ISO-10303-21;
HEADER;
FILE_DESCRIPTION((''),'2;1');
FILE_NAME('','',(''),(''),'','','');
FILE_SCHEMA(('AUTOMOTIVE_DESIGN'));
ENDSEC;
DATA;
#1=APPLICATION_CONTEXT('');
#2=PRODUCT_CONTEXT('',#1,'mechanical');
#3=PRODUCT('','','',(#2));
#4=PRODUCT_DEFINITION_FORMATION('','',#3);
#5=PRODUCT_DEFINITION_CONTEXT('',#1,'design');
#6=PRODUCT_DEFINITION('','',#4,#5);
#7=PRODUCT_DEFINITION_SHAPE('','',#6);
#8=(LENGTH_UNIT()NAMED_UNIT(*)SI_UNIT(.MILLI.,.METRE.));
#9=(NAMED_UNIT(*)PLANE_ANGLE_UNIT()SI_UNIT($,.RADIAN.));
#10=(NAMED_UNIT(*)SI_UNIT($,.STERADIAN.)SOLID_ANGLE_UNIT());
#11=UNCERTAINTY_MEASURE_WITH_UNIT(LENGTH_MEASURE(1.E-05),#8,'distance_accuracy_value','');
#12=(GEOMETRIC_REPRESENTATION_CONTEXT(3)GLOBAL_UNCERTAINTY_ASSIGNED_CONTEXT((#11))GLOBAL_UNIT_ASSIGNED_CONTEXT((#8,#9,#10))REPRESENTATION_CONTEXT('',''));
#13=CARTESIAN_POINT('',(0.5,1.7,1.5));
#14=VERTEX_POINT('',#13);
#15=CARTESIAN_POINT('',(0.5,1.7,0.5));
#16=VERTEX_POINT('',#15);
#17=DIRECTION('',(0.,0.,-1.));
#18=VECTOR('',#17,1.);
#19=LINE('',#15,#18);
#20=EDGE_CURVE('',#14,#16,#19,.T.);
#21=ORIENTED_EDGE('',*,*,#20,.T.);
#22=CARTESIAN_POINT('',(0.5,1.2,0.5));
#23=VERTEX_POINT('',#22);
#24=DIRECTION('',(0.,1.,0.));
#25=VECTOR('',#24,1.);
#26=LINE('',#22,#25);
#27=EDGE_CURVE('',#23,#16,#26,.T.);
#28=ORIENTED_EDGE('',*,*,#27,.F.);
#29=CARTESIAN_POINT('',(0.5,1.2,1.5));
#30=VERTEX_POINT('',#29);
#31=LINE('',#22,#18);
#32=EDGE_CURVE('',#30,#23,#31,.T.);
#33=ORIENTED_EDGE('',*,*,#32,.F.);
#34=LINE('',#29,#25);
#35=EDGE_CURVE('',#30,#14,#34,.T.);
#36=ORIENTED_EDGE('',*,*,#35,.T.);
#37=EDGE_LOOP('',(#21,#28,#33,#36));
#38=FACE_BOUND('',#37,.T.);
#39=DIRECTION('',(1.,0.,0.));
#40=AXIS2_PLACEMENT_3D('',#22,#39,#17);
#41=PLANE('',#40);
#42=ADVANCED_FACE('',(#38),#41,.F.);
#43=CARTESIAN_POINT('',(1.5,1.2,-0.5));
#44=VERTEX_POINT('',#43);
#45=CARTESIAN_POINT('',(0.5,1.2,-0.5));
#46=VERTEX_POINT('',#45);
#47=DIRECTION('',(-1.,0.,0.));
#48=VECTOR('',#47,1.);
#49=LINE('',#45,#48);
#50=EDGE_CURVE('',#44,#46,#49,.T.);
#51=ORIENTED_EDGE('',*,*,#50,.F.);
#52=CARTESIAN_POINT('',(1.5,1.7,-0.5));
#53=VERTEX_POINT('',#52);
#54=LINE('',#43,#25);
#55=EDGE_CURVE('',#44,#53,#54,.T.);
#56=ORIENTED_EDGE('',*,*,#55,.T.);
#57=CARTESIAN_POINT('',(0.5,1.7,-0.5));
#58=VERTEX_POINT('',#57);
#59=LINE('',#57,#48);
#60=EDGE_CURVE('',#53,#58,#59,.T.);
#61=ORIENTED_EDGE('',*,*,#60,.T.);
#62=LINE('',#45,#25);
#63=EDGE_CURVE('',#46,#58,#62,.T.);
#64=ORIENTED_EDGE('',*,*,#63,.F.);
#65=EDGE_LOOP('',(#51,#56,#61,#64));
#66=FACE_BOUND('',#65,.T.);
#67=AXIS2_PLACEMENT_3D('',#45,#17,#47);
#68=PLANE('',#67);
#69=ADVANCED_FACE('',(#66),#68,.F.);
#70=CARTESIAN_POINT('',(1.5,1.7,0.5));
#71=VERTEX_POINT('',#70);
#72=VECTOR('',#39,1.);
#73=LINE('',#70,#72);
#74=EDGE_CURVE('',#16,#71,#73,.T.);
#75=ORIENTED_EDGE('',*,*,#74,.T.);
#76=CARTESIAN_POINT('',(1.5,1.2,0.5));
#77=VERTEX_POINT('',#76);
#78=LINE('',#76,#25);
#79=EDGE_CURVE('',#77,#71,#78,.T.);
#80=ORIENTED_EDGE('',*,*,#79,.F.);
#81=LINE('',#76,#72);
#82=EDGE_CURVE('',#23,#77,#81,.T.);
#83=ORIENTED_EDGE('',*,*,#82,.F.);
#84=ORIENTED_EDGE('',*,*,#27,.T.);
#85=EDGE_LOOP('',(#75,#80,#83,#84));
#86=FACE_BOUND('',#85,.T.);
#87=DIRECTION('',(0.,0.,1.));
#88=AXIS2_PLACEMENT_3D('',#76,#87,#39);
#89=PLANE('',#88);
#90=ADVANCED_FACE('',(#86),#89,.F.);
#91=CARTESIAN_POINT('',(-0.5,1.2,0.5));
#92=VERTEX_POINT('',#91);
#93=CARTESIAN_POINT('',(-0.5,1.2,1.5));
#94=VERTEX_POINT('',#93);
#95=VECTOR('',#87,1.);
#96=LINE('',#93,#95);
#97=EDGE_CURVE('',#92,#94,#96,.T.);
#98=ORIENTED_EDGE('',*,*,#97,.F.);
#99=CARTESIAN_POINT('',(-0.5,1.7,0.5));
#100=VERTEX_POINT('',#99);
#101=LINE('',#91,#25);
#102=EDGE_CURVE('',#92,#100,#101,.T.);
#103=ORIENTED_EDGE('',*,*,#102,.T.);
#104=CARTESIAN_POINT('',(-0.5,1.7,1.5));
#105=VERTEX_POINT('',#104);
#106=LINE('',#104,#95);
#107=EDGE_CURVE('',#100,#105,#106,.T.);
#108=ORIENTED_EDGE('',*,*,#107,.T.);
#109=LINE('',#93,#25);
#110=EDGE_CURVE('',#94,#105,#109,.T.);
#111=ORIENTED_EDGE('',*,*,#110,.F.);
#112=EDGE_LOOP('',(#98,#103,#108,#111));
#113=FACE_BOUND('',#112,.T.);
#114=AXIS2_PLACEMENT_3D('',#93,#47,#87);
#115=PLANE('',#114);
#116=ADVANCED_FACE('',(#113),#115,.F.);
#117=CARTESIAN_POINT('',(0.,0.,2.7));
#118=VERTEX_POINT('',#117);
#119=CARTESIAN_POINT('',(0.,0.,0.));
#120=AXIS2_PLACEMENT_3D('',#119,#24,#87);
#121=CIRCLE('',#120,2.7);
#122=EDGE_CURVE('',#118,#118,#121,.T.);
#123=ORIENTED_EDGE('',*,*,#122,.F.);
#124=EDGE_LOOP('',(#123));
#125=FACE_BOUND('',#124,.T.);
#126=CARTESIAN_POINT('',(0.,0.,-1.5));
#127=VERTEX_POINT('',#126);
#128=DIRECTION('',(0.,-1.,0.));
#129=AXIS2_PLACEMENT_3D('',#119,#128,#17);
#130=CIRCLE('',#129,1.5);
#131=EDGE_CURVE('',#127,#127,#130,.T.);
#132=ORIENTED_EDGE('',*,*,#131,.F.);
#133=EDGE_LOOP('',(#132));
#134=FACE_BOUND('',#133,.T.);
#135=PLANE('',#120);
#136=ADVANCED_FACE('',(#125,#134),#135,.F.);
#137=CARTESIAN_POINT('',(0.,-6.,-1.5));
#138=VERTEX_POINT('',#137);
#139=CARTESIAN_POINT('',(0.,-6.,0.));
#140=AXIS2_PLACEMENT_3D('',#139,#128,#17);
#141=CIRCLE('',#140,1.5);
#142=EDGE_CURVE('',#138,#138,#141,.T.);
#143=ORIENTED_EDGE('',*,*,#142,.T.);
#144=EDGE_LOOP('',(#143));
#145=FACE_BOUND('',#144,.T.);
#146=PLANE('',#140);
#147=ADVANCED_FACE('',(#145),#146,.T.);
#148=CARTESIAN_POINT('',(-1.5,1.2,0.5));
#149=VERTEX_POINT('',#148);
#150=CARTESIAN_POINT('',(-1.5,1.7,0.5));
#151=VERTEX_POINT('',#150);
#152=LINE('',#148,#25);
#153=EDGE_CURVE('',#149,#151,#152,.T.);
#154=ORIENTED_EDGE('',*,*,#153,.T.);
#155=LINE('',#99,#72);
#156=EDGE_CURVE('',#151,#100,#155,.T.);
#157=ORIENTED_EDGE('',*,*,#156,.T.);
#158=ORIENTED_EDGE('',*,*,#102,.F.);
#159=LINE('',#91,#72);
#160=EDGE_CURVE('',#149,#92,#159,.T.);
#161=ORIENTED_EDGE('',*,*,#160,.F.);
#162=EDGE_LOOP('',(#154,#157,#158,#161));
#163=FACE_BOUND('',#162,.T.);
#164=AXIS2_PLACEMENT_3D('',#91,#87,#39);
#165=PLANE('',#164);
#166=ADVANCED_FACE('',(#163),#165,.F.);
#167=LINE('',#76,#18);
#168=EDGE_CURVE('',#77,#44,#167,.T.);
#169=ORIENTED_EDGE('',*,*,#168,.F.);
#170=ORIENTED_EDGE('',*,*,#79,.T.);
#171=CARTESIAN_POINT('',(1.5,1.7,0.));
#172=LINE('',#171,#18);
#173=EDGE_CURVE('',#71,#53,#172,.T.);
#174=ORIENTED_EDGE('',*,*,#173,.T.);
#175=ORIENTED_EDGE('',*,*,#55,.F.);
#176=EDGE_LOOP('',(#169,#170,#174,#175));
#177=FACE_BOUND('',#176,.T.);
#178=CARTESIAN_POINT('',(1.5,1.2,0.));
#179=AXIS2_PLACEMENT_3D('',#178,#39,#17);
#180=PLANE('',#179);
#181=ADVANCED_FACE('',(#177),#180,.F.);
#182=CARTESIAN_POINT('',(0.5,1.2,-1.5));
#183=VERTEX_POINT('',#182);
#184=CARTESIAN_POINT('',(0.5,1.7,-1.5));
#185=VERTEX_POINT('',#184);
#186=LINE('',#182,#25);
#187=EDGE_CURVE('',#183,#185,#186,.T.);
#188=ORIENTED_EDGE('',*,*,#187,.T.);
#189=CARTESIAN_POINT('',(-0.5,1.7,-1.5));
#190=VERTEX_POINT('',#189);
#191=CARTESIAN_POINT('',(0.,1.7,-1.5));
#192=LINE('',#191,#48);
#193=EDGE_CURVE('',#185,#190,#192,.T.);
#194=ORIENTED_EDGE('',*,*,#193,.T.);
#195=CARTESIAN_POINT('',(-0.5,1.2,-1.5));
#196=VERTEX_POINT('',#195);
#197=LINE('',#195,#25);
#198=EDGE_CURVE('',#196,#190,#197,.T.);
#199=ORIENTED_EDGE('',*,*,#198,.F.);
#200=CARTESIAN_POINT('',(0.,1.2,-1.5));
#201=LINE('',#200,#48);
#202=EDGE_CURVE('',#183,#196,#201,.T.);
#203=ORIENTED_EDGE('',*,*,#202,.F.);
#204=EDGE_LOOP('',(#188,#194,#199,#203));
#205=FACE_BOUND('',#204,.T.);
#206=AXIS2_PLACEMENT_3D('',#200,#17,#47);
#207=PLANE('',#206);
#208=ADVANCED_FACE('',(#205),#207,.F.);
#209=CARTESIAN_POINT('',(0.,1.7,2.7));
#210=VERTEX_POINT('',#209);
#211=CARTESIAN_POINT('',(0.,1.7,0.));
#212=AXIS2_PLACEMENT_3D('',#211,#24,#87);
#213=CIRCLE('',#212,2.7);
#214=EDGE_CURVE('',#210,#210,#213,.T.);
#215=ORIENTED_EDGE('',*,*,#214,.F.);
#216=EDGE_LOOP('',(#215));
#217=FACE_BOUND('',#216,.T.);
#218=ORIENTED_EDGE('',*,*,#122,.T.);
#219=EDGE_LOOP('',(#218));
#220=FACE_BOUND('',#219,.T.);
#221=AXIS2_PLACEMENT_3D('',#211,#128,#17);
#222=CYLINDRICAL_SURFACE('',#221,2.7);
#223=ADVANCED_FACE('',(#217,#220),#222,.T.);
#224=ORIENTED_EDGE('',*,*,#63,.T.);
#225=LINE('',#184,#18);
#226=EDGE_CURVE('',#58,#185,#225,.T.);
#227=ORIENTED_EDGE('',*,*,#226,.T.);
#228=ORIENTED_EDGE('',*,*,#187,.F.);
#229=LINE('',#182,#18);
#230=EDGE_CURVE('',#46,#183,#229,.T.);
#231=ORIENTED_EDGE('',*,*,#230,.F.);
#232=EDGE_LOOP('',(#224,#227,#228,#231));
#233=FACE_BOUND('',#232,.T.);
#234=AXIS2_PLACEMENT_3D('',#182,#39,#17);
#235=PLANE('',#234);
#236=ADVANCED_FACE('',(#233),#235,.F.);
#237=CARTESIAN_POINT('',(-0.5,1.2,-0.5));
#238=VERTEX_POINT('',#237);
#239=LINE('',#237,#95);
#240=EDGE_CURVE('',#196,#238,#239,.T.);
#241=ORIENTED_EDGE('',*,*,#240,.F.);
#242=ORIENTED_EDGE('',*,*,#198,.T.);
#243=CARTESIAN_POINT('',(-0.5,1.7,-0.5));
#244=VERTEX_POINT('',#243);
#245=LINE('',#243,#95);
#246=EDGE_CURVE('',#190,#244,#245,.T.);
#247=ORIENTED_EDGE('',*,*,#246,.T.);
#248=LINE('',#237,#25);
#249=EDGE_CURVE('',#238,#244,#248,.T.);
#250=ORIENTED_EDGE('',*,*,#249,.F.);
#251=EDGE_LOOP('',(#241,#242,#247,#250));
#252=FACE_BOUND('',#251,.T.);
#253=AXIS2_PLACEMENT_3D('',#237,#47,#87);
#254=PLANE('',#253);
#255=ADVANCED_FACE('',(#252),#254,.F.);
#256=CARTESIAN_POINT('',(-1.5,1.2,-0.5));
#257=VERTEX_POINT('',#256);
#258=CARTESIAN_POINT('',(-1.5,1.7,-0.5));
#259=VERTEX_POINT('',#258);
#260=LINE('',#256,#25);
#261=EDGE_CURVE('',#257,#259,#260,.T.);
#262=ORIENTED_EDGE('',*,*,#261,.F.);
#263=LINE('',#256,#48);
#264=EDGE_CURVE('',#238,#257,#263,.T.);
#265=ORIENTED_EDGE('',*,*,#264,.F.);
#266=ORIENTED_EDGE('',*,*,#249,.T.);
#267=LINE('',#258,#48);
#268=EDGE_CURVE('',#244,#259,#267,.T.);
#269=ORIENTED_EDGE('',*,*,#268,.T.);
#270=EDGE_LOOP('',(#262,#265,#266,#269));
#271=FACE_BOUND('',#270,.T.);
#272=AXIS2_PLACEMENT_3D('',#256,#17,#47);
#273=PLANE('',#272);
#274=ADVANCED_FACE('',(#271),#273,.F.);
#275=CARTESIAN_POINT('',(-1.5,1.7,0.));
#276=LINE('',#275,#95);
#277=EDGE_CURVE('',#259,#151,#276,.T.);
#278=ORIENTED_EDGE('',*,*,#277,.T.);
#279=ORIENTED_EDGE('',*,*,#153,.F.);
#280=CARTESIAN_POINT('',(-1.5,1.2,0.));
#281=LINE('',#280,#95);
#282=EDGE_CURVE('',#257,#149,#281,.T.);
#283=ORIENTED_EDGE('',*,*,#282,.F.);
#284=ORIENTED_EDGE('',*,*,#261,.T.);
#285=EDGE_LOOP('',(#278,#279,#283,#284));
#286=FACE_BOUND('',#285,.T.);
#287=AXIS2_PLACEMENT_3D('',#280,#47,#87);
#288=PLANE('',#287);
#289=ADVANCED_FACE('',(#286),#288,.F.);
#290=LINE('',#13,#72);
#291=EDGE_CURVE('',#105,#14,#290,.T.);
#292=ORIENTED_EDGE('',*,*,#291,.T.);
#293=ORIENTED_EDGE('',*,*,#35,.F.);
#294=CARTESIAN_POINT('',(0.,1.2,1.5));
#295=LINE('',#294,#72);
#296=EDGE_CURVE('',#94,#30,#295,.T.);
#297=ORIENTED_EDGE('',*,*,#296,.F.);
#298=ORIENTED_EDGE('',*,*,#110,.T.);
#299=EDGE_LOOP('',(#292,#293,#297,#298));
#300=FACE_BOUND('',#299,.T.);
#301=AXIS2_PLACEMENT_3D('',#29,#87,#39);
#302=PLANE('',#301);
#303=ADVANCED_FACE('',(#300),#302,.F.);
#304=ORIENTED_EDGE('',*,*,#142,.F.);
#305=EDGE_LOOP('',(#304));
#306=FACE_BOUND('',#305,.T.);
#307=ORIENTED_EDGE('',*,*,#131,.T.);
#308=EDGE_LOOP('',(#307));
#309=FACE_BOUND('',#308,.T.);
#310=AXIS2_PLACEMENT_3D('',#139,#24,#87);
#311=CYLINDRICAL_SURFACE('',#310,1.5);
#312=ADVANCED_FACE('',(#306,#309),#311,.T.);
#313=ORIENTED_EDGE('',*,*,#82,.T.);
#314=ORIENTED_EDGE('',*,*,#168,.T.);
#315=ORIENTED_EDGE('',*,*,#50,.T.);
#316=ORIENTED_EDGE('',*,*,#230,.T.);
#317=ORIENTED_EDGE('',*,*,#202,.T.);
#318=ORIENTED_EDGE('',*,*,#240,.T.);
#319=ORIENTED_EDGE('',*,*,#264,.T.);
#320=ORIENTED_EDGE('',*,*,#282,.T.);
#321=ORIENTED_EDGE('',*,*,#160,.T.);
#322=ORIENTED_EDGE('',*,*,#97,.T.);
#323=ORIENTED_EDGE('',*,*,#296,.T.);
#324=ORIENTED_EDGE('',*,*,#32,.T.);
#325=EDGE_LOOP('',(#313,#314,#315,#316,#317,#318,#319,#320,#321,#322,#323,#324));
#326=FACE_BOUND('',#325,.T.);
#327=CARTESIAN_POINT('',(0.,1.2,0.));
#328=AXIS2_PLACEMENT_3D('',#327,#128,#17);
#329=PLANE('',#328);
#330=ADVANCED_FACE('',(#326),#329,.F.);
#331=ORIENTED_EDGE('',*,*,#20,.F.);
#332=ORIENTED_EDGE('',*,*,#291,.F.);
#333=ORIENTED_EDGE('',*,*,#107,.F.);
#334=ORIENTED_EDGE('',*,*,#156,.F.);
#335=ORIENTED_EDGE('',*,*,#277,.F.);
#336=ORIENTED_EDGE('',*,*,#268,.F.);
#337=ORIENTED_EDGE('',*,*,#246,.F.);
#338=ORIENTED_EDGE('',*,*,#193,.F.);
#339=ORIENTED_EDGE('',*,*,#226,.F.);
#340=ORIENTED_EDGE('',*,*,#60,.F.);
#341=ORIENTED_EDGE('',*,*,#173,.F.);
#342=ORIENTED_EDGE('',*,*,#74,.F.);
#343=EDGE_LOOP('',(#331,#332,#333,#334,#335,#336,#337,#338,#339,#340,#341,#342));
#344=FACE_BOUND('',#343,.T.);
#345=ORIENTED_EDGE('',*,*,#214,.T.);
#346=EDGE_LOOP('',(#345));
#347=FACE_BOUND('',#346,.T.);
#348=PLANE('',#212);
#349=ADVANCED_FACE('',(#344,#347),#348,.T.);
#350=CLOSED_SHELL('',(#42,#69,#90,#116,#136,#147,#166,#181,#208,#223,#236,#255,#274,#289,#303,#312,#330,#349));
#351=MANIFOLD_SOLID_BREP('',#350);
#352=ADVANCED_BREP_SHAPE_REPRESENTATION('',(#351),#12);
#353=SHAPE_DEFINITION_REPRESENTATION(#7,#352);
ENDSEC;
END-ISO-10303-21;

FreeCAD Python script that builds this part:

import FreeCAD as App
import Part
import Sketcher

V = App.Vector
Q = App.Units.Quantity

doc = App.newDocument("Part")
params = doc.addObject("Spreadsheet::Sheet", "Params")
for row, (alias, value) in enumerate([
    ("sketch1_diameter", "5.4 mm"),
    ("pad1_length", "1.7 mm"),
    ("sketch2_width", "1 mm"),
    ("pocket1_length", "0.5 mm"),
    ("sketch3_diameter", "3 mm"),
    ("pad2_length", "6 mm"),
], start=1):
    params.set(f"A{row}", alias)
    params.set(f"B{row}", "=" + value)
    params.setAlias(f"B{row}", alias)

body = doc.addObject("PartDesign::Body", "Body")

# Sketch on XZ plane
sketch1 = body.newObject("Sketcher::SketchObject", "Sketch")
sketch1.AttachmentSupport = (doc.getObject("XZ_Plane"), [""])
sketch1.MapMode = "FlatFace"
sketch1.addGeometry(Part.Circle(V(0, 0, 0), V(0, 0, 1), 2.7), False)
sketch1.addConstraint([
    Sketcher.Constraint("Coincident", 0, 3, -1, 1),
    Sketcher.Constraint("Diameter", 0, Q("5.4 mm")),
])
sketch1.setExpression("Constraints[1]", "Params.sketch1_diameter")
pad1 = body.newObject("PartDesign::Pad", "Pad")
pad1.Profile = sketch1
pad1.setExpression("Length", "Params.pad1_length")
pad1.Reversed = True

# Sketch on XZ plane
sketch2 = body.newObject("Sketcher::SketchObject", "Sketch001")
sketch2.AttachmentSupport = (doc.getObject("XZ_Plane"), [""])
sketch2.MapMode = "FlatFace"
sketch2.AttachmentOffset = App.Placement(V(0, 0, -1.7), App.Rotation())
sketch2.addGeometry([
    Part.LineSegment(V(0.5, -1.5, 0), V(-0.5, -1.5, 0)),  # 0
    Part.LineSegment(V(-0.5, -1.5, 0), V(-0.5, -0.5, 0)),  # 1
    Part.LineSegment(V(-0.5, -0.5, 0), V(-1.5, -0.5, 0)),  # 2
    Part.LineSegment(V(-1.5, -0.5, 0), V(-1.5, 0.5, 0)),  # 3
    Part.LineSegment(V(-1.5, 0.5, 0), V(-0.5, 0.5, 0)),  # 4
    Part.LineSegment(V(-0.5, 0.5, 0), V(-0.5, 1.5, 0)),  # 5
    Part.LineSegment(V(-0.5, 1.5, 0), V(0.5, 1.5, 0)),  # 6
    Part.LineSegment(V(0.5, 1.5, 0), V(0.5, 0.5, 0)),  # 7
    Part.LineSegment(V(0.5, 0.5, 0), V(1.5, 0.5, 0)),  # 8
    Part.LineSegment(V(1.5, 0.5, 0), V(1.5, -0.5, 0)),  # 9
    Part.LineSegment(V(1.5, -0.5, 0), V(0.5, -0.5, 0)),  # 10
    Part.LineSegment(V(0.5, -0.5, 0), V(0.5, -1.5, 0)),  # 11
], False)
sketch2.addConstraint([
    Sketcher.Constraint("Coincident", 0, 2, 1, 1),
    Sketcher.Constraint("Coincident", 1, 2, 2, 1),
    Sketcher.Constraint("Coincident", 2, 2, 3, 1),
    Sketcher.Constraint("Coincident", 3, 2, 4, 1),
    Sketcher.Constraint("Coincident", 4, 2, 5, 1),
    Sketcher.Constraint("Coincident", 5, 2, 6, 1),
    Sketcher.Constraint("Coincident", 6, 2, 7, 1),
    Sketcher.Constraint("Coincident", 7, 2, 8, 1),
    Sketcher.Constraint("Coincident", 8, 2, 9, 1),
    Sketcher.Constraint("Coincident", 9, 2, 10, 1),
    Sketcher.Constraint("Coincident", 10, 2, 11, 1),
    Sketcher.Constraint("Coincident", 11, 2, 0, 1),
    Sketcher.Constraint("Horizontal", 0),
    Sketcher.Constraint("Vertical", 1),
    Sketcher.Constraint("Horizontal", 2),
    Sketcher.Constraint("Vertical", 3),
    Sketcher.Constraint("Horizontal", 4),
    Sketcher.Constraint("Vertical", 5),
    Sketcher.Constraint("Horizontal", 6),
    Sketcher.Constraint("Vertical", 7),
    Sketcher.Constraint("Horizontal", 8),
    Sketcher.Constraint("Vertical", 9),
    Sketcher.Constraint("Horizontal", 10),
    Sketcher.Constraint("Vertical", 11),
    Sketcher.Constraint("Symmetric", 0, 2, 6, 2, -1, 1),
    Sketcher.Constraint("Symmetric", 2, 2, 8, 2, -1, 1),
    Sketcher.Constraint("Symmetric", 4, 2, 10, 2, -1, 1),
    Sketcher.Constraint("Symmetric", 4, 2, 7, 2, -2),
    Sketcher.Constraint("Equal", 0, 2),
    Sketcher.Constraint("Equal", 10, 1),
    Sketcher.Constraint("Equal", 1, 3),
    Sketcher.Constraint("DistanceX", 0, 2, 0, 1, Q("1 mm")),
])
sketch2.setExpression("Constraints[31]", "Params.sketch2_width")
pocket1 = body.newObject("PartDesign::Pocket", "Pocket")
pocket1.Profile = sketch2
pocket1.setExpression("Length", "Params.pocket1_length")
pocket1.Reversed = True

# Sketch on XZ plane
sketch3 = body.newObject("Sketcher::SketchObject", "Sketch002")
sketch3.AttachmentSupport = (doc.getObject("XZ_Plane"), [""])
sketch3.MapMode = "FlatFace"
sketch3.addGeometry(Part.Circle(V(0, 0, 0), V(0, 0, 1), 1.5), False)
sketch3.addConstraint([
    Sketcher.Constraint("Coincident", 0, 3, -1, 1),
    Sketcher.Constraint("Diameter", 0, Q("3 mm")),
])
sketch3.setExpression("Constraints[1]", "Params.sketch3_diameter")
pad2 = body.newObject("PartDesign::Pad", "Pad001")
pad2.Profile = sketch3
pad2.setExpression("Length", "Params.pad2_length")

doc.recompute()
